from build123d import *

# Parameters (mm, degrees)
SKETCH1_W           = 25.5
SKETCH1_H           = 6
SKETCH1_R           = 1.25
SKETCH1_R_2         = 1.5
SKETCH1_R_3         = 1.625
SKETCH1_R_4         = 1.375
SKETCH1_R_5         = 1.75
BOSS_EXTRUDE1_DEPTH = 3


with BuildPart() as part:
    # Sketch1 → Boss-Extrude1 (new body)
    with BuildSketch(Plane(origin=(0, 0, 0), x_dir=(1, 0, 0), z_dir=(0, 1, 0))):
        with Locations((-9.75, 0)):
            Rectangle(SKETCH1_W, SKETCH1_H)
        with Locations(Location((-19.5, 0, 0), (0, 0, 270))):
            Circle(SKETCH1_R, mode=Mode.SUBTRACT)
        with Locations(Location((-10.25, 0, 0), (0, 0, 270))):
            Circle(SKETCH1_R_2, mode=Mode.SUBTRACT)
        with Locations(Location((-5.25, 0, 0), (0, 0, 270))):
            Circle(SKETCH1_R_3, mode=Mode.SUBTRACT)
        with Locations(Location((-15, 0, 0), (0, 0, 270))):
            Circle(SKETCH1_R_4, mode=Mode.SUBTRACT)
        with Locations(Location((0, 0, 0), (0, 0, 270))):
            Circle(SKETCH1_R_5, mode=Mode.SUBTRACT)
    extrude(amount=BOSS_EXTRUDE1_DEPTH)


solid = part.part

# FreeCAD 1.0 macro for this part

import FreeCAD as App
import Part
import Sketcher
from FreeCAD import Vector
Q = App.Units.Quantity

doc = App.newDocument("Part")
params = doc.addObject("Spreadsheet::Sheet", "Params")
for row, (alias, value) in enumerate([
    ("sketch1_diameter", "3 mm"),
    ("sketch1_diameter2", "2.5 mm"),
    ("sketch1_diameter3", "3.5 mm"),
    ("sketch1_diameter4", "2.75 mm"),
    ("sketch1_diameter5", "3.25 mm"),
    ("pad1_length", "3 mm"),
], start=1):
    params.set(f"A{row}", alias)
    params.set(f"B{row}", "=" + value)
    params.setAlias(f"B{row}", alias)

body = doc.addObject("PartDesign::Body", "Body")

# Sketch on XZ plane
sketch1 = body.newObject("Sketcher::SketchObject", "Sketch")
sketch1.AttachmentSupport = (doc.getObject("XZ_Plane"), [""])
sketch1.MapMode = "FlatFace"
sketch1.addGeometry([
    Part.LineSegment(Vector(-22.5, -3, 0), Vector(-22.5, 3, 0)),  # 0
    Part.LineSegment(Vector(-22.5, 3, 0), Vector(3, 3, 0)),  # 1
    Part.LineSegment(Vector(3, 3, 0), Vector(3, -3, 0)),  # 2
    Part.LineSegment(Vector(3, -3, 0), Vector(-22.5, -3, 0)),  # 3
    Part.Circle(Vector(-19.5, 0, 0), Vector(0, 0, 1), 1.2),  # 4
    Part.Circle(Vector(-15, 0, 0), Vector(0, 0, 1), 1.4),  # 5
    Part.Circle(Vector(-10.2, 0, 0), Vector(0, 0, 1), 1.5),  # 6
    Part.Circle(Vector(-5.2, 0, 0), Vector(0, 0, 1), 1.6),  # 7
    Part.Circle(Vector(0, 0, 0), Vector(0, 0, 1), 1.8),  # 8
], False)
sketch1.addConstraint([
    Sketcher.Constraint("Coincident", 0, 2, 1, 1),
    Sketcher.Constraint("Coincident", 1, 2, 2, 1),
    Sketcher.Constraint("Coincident", 2, 2, 3, 1),
    Sketcher.Constraint("Coincident", 3, 2, 0, 1),
    Sketcher.Constraint("Vertical", 0),
    Sketcher.Constraint("Horizontal", 1),
    Sketcher.Constraint("Vertical", 2),
    Sketcher.Constraint("Horizontal", 3),
    Sketcher.Constraint("Coincident", 8, 3, -1, 1),
    Sketcher.Constraint("PointOnObject", 4, 3, -1),
    Sketcher.Constraint("PointOnObject", 5, 3, -1),
    Sketcher.Constraint("PointOnObject", 6, 3, -1),
    Sketcher.Constraint("PointOnObject", 7, 3, -1),
    Sketcher.Constraint("Diameter", 6, Q("3 mm")),
    Sketcher.Constraint("Diameter", 4, Q("2.5 mm")),
    Sketcher.Constraint("Diameter", 8, Q("3.5 mm")),
    Sketcher.Constraint("Diameter", 5, Q("2.75 mm")),
    Sketcher.Constraint("Diameter", 7, Q("3.25 mm")),
    Sketcher.Constraint("DistanceY", 0, 1, 0, 2, Q("6 mm")),
    Sketcher.Constraint("DistanceX", 1, 1, 1, 2, Q("25.5 mm")),
    Sketcher.Constraint("DistanceX", 5, 3, -1, 1, Q("15 mm")),
    Sketcher.Constraint("DistanceY", -1, 1, 0, 2, Q("3 mm")),
    Sketcher.Constraint("DistanceX", -1, 1, 1, 2, Q("3 mm")),
    Sketcher.Constraint("DistanceX", 6, 3, 7, 3, Q("5 mm")),
    Sketcher.Constraint("DistanceX", 0, 2, 4, 3, Q("3 mm")),
    Sketcher.Constraint("DistanceX", 6, 3, -1, 1, Q("10.25 mm")),
])
sketch1.setExpression("Constraints[13]", "Params.sketch1_diameter")
sketch1.setExpression("Constraints[14]", "Params.sketch1_diameter2")
sketch1.setExpression("Constraints[15]", "Params.sketch1_diameter3")
sketch1.setExpression("Constraints[16]", "Params.sketch1_diameter4")
sketch1.setExpression("Constraints[17]", "Params.sketch1_diameter5")
pad1 = body.newObject("PartDesign::Pad", "Pad")
pad1.Profile = sketch1
pad1.setExpression("Length", "Params.pad1_length")
pad1.Reversed = True

doc.recompute()
